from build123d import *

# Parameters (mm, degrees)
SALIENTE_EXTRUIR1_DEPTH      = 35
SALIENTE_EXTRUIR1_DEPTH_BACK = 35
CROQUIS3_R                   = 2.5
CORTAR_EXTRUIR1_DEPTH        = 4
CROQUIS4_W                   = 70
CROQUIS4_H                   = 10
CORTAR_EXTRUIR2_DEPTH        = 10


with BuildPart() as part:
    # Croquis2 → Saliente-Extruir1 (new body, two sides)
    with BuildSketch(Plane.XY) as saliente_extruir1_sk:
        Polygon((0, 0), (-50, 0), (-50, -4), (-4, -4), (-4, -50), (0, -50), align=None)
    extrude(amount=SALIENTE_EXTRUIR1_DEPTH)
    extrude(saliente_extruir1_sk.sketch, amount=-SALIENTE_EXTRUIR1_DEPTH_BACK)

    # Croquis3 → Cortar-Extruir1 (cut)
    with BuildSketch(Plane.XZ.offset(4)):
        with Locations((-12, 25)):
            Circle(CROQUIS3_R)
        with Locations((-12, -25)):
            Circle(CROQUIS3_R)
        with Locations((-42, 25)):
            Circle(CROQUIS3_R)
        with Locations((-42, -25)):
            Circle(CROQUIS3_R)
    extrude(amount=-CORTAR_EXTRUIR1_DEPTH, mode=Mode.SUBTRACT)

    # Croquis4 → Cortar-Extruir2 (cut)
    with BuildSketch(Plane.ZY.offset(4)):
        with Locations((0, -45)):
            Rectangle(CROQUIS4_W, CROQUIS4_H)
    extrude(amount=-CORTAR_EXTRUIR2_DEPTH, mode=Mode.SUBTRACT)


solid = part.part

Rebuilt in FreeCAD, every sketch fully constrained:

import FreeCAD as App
import Part
import Sketcher
from FreeCAD import Vector
Q = App.Units.Quantity


def add_polygon(sketch, points):
    """Adds a closed chain of lines whose ends are joined by coincident constraints."""
    first, n = sketch.GeometryCount, len(points)
    for a, b in zip(points, points[1:] + points[:1]):
        sketch.addGeometry(Part.LineSegment(App.Vector(*a, 0), App.Vector(*b, 0)), False)
    for i in range(n):
        sketch.addConstraint(Sketcher.Constraint("Coincident", first + i, 2, first + (i + 1) % n, 1))

doc = App.newDocument("Part")
body = doc.addObject("PartDesign::Body", "Body")

# Sketch on XY plane
sketch1 = doc.addObject("Sketcher::SketchObject", "Sketch")
body.addObject(sketch1)
sketch1.AttachmentSupport = (doc.XY_Plane, [""])
sketch1.MapMode = "FlatFace"
add_polygon(sketch1, [(0, 0), (-50, 0), (-50, -4), (-4, -4), (-4, -50), (0, -50)])  # lines 0-5
sketch1.addConstraint(Sketcher.Constraint("Horizontal", 0))
sketch1.addConstraint(Sketcher.Constraint("Vertical", 1))
sketch1.addConstraint(Sketcher.Constraint("Horizontal", 2))
sketch1.addConstraint(Sketcher.Constraint("Vertical", 3))
sketch1.addConstraint(Sketcher.Constraint("Horizontal", 4))
sketch1.addConstraint(Sketcher.Constraint("Vertical", 5))
sketch1.addConstraint(Sketcher.Constraint("Coincident", 5, 2, -1, 1))
sketch1.addConstraint(Sketcher.Constraint("Equal", 4, 1))
sketch1.addConstraint(Sketcher.Constraint("Equal", 2, 3))
sketch1.addConstraint(Sketcher.Constraint("DistanceX", 0, 2, 0, 1, Q("50 mm")))
sketch1.addConstraint(Sketcher.Constraint("DistanceX", 2, 1, 2, 2, Q("46 mm")))
pad1 = doc.addObject("PartDesign::Pad", "Pad")
body.addObject(pad1)
pad1.Profile = sketch1
pad1.Type = "TwoLengths"
pad1.Length = 35
pad1.Length2 = 35

# Sketch on XZ plane
sketch2 = doc.addObject("Sketcher::SketchObject", "Sketch001")
body.addObject(sketch2)
sketch2.AttachmentSupport = (doc.XZ_Plane, [""])
sketch2.MapMode = "FlatFace"
sketch2.AttachmentOffset = App.Placement(Vector(0, 0, 4), App.Rotation())
sketch2.addGeometry(Part.Circle(Vector(-12, 25, 0), Vector(0, 0, 1), 2.5), False)
sketch2.addGeometry(Part.Circle(Vector(-12, -25, 0), Vector(0, 0, 1), 2.5), False)
sketch2.addGeometry(Part.Circle(Vector(-42, 25, 0), Vector(0, 0, 1), 2.5), False)
sketch2.addGeometry(Part.Circle(Vector(-42, -25, 0), Vector(0, 0, 1), 2.5), False)
sketch2.addConstraint(Sketcher.Constraint("Equal", 0, 1))
sketch2.addConstraint(Sketcher.Constraint("Equal", 1, 2))
sketch2.addConstraint(Sketcher.Constraint("Equal", 2, 3))
sketch2.addConstraint(Sketcher.Constraint("Symmetric", 0, 3, 1, 3, -1))
sketch2.addConstraint(Sketcher.Constraint("Symmetric", 2, 3, 3, 3, -1))
sketch2.addConstraint(Sketcher.Constraint("Horizontal", 0, 3, 2, 3))
sketch2.addConstraint(Sketcher.Constraint("Diameter", 0, Q("5 mm")))
sketch2.addConstraint(Sketcher.Constraint("DistanceX", 0, 3, -1, 1, Q("12 mm")))
sketch2.addConstraint(Sketcher.Constraint("DistanceY", -1, 1, 0, 3, Q("25 mm")))
sketch2.addConstraint(Sketcher.Constraint("DistanceX", 2, 3, -1, 1, Q("42 mm")))
pocket1 = doc.addObject("PartDesign::Pocket", "Pocket")
body.addObject(pocket1)
pocket1.Profile = sketch2
pocket1.Length = 4

# Sketch on YZ plane
sketch3 = doc.addObject("Sketcher::SketchObject", "Sketch002")
body.addObject(sketch3)
sketch3.AttachmentSupport = (doc.YZ_Plane, [""])
sketch3.MapMode = "FlatFace"
sketch3.AttachmentOffset = App.Placement(Vector(0, 0, -4), App.Rotation())
add_polygon(sketch3, [(-40, -35), (-50, -35), (-50, 35), (-40, 35)])  # lines 0-3
sketch3.addConstraint(Sketcher.Constraint("Horizontal", 0))
sketch3.addConstraint(Sketcher.Constraint("Vertical", 1))
sketch3.addConstraint(Sketcher.Constraint("Horizontal", 2))
sketch3.addConstraint(Sketcher.Constraint("Vertical", 3))
sketch3.addConstraint(Sketcher.Constraint("DistanceX", 0, 2, 0, 1, Q("10 mm")))
sketch3.addConstraint(Sketcher.Constraint("DistanceY", 1, 1, 1, 2, Q("70 mm")))
sketch3.addConstraint(Sketcher.Constraint("DistanceX", 0, 2, -1, 1, Q("50 mm")))
sketch3.addConstraint(Sketcher.Constraint("DistanceY", 0, 2, -1, 1, Q("35 mm")))
pocket2 = doc.addObject("PartDesign::Pocket", "Pocket001")
body.addObject(pocket2)
pocket2.Profile = sketch3
pocket2.Length = 10
pocket2.Reversed = True

doc.recompute()
